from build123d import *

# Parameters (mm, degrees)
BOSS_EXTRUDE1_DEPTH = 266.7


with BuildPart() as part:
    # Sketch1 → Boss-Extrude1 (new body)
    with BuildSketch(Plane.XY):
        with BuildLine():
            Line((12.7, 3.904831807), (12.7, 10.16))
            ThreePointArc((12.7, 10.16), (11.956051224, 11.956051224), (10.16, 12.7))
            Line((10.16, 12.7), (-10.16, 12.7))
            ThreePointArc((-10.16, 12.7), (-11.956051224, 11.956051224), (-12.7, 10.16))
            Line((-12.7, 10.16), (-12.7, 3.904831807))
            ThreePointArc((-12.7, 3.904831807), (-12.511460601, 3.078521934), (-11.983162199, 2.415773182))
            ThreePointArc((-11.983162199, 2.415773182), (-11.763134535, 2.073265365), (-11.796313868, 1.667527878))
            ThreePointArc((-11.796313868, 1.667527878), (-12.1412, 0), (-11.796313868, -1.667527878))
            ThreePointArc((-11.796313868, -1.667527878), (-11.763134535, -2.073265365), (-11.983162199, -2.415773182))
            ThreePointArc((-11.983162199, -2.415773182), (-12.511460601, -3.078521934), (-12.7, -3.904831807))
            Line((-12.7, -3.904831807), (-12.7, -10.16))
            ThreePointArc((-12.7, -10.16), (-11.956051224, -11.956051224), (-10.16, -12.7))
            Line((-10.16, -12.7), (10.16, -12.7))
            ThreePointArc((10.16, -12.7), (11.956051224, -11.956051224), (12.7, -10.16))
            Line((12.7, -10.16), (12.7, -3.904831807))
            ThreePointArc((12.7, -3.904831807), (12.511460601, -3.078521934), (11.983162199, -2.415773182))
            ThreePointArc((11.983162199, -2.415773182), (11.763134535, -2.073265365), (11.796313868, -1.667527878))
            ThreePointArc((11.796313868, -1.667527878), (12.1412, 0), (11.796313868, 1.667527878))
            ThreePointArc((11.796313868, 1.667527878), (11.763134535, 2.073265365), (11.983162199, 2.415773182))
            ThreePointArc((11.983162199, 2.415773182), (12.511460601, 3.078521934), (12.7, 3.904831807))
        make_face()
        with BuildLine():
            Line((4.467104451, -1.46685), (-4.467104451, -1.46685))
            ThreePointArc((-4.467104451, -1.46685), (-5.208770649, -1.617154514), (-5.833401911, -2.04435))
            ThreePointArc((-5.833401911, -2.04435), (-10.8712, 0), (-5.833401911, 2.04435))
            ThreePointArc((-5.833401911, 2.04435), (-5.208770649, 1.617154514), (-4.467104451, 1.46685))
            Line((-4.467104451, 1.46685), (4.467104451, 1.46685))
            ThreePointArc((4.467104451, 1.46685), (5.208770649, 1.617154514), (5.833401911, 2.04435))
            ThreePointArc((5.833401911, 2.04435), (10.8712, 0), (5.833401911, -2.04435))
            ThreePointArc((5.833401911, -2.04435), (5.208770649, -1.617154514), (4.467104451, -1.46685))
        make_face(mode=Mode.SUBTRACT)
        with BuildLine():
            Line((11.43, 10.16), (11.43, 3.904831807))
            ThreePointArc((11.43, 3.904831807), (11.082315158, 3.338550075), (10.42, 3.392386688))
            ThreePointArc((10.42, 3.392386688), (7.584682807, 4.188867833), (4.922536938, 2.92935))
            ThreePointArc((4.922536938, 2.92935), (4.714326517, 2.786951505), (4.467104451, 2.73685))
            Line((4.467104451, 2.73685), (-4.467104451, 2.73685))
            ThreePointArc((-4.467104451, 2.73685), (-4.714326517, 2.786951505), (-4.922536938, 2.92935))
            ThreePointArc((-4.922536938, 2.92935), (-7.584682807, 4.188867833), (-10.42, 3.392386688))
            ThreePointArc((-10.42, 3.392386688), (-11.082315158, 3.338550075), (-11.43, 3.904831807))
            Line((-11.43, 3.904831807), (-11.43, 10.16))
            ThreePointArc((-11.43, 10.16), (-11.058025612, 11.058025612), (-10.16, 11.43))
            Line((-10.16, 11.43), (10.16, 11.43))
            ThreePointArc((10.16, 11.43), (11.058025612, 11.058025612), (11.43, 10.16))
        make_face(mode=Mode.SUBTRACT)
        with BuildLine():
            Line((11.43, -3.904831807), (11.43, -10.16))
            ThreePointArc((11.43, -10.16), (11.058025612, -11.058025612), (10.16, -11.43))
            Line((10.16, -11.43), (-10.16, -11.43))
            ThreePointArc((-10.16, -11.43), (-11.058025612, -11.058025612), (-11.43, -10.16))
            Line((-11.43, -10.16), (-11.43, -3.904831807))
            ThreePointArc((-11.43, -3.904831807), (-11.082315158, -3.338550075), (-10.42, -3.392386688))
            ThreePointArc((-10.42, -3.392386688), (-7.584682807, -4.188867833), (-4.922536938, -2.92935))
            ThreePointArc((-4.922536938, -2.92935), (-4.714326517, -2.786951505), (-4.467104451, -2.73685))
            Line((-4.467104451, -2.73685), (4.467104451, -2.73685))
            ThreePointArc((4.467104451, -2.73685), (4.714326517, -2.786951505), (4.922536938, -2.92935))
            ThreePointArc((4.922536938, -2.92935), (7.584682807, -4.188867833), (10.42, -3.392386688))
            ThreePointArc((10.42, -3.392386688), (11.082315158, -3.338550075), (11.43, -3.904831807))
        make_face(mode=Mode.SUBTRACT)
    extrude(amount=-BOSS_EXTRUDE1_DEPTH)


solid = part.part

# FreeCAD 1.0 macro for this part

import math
import FreeCAD as App
import Part
import Sketcher
Q = App.Units.Quantity

doc = App.newDocument("Part")
params = doc.addObject("Spreadsheet::Sheet", "Params")
for row, (alias, value) in enumerate([
    ("sketch1_radius", "0.1 in"),
    ("sketch1_radius2", "0.05 in"),
    ("sketch1_width", "0.8 in"),
    ("sketch1_radius3", "0.075 in"),
    ("pad1_length", "10.5 in"),
], start=1):
    params.set(f"A{row}", alias)
    params.set(f"B{row}", "=" + value)
    params.setAlias(f"B{row}", alias)

body = doc.addObject("PartDesign::Body", "Body")

sketch1 = doc.addObject("Sketcher::SketchObject", "Sketch")
body.addObject(sketch1)
sketch1.AttachmentSupport = (doc.XY_Plane, [""])
sketch1.MapMode = "FlatFace"
sketch1.addGeometry(Part.LineSegment(App.Vector(12.7, 3.9, 0), App.Vector(12.7, 10.16, 0)), False)
sketch1.addGeometry(Part.ArcOfCircle(Part.Circle(App.Vector(10.16, 10.16, 0), App.Vector(0, 0, 1), 2.54), math.radians(0), math.radians(90)), False)
sketch1.addGeometry(Part.LineSegment(App.Vector(10.16, 12.7, 0), App.Vector(-10.16, 12.7, 0)), False)
sketch1.addGeometry(Part.ArcOfCircle(Part.Circle(App.Vector(-10.16, 10.16, 0), App.Vector(0, 0, 1), 2.54), math.radians(90), math.radians(180)), False)
sketch1.addGeometry(Part.LineSegment(App.Vector(-12.7, 10.16, 0), App.Vector(-12.7, 3.9, 0)), False)
sketch1.addGeometry(Part.ArcOfCircle(Part.Circle(App.Vector(-10.8, 3.9, 0), App.Vector(0, 0, 1), 1.9), math.radians(180), math.radians(231)), False)
sketch1.addGeometry(Part.ArcOfCircle(Part.Circle(App.Vector(-12.38, 1.92, 0), App.Vector(0, 0, 1), 0.64), math.radians(-23), math.radians(51)), False)
sketch1.addGeometry(Part.ArcOfCircle(Part.Circle(App.Vector(-7.94, 0, 0), App.Vector(0, 0, 1), 4.2), math.radians(157), math.radians(203)), False)
sketch1.addGeometry(Part.ArcOfCircle(Part.Circle(App.Vector(-12.38, -1.92, 0), App.Vector(0, 0, 1), 0.64), math.radians(-51), math.radians(23)), False)
sketch1.addGeometry(Part.ArcOfCircle(Part.Circle(App.Vector(-10.8, -3.9, 0), App.Vector(0, 0, 1), 1.9), math.radians(129), math.radians(180)), False)
sketch1.addGeometry(Part.LineSegment(App.Vector(-12.7, -3.9, 0), App.Vector(-12.7, -10.16, 0)), False)
sketch1.addGeometry(Part.ArcOfCircle(Part.Circle(App.Vector(-10.16, -10.16, 0), App.Vector(0, 0, 1), 2.54), math.radians(-180), math.radians(-90)), False)
sketch1.addGeometry(Part.LineSegment(App.Vector(-10.16, -12.7, 0), App.Vector(10.16, -12.7, 0)), False)
sketch1.addGeometry(Part.ArcOfCircle(Part.Circle(App.Vector(10.16, -10.16, 0), App.Vector(0, 0, 1), 2.54), math.radians(-90), math.radians(0)), False)
sketch1.addGeometry(Part.LineSegment(App.Vector(12.7, -10.16, 0), App.Vector(12.7, -3.9, 0)), False)
sketch1.addGeometry(Part.ArcOfCircle(Part.Circle(App.Vector(10.8, -3.9, 0), App.Vector(0, 0, 1), 1.9), math.radians(0), math.radians(51)), False)
sketch1.addGeometry(Part.ArcOfCircle(Part.Circle(App.Vector(12.38, -1.92, 0), App.Vector(0, 0, 1), 0.64), math.radians(157), math.radians(231)), False)
sketch1.addGeometry(Part.ArcOfCircle(Part.Circle(App.Vector(7.94, 0, 0), App.Vector(0, 0, 1), 4.2), math.radians(-23), math.radians(23)), False)
sketch1.addGeometry(Part.ArcOfCircle(Part.Circle(App.Vector(12.38, 1.92, 0), App.Vector(0, 0, 1), 0.64), math.radians(129), math.radians(203)), False)
sketch1.addGeometry(Part.ArcOfCircle(Part.Circle(App.Vector(10.8, 3.9, 0), App.Vector(0, 0, 1), 1.9), math.radians(-51), math.radians(0)), False)
sketch1.addGeometry(Part.ArcOfCircle(Part.Circle(App.Vector(10.79, -3.9, 0), App.Vector(0, 0, 1), 0.64), math.radians(0), math.radians(126)), False)
sketch1.addGeometry(Part.LineSegment(App.Vector(11.43, -3.9, 0), App.Vector(11.43, -10.16, 0)), False)
sketch1.addGeometry(Part.ArcOfCircle(Part.Circle(App.Vector(10.16, -10.16, 0), App.Vector(0, 0, 1), 1.27), math.radians(-90), math.radians(0)), False)
sketch1.addGeometry(Part.LineSegment(App.Vector(10.16, -11.43, 0), App.Vector(-10.16, -11.43, 0)), False)
sketch1.addGeometry(Part.ArcOfCircle(Part.Circle(App.Vector(-10.16, -10.16, 0), App.Vector(0, 0, 1), 1.27), math.radians(180), math.radians(270)), False)
sketch1.addGeometry(Part.LineSegment(App.Vector(-11.43, -10.16, 0), App.Vector(-11.43, -3.9, 0)), False)
sketch1.addGeometry(Part.ArcOfCircle(Part.Circle(App.Vector(-10.79, -3.9, 0), App.Vector(0, 0, 1), 0.64), math.radians(54), math.radians(180)), False)
sketch1.addGeometry(Part.ArcOfCircle(Part.Circle(App.Vector(-7.94, 0, 0), App.Vector(0, 0, 1), 4.2), math.radians(-126), math.radians(-44)), False)
sketch1.addGeometry(Part.ArcOfCircle(Part.Circle(App.Vector(-4.47, -3.37, 0), App.Vector(0, 0, 1), 0.64), math.radians(90), math.radians(136)), False)
sketch1.addGeometry(Part.LineSegment(App.Vector(-4.47, -2.74, 0), App.Vector(4.47, -2.74, 0)), False)
sketch1.addGeometry(Part.ArcOfCircle(Part.Circle(App.Vector(4.47, -3.37, 0), App.Vector(0, 0, 1), 0.64), math.radians(44), math.radians(90)), False)
sketch1.addGeometry(Part.ArcOfCircle(Part.Circle(App.Vector(7.94, 0, 0), App.Vector(0, 0, 1), 4.2), math.radians(-136), math.radians(-54)), False)
sketch1.addGeometry(Part.ArcOfCircle(Part.Circle(App.Vector(4.47, -3.37, 0), App.Vector(0, 0, 1), 1.91), math.radians(44), math.radians(90)), False)
sketch1.addGeometry(Part.LineSegment(App.Vector(4.47, -1.47, 0), App.Vector(-4.47, -1.47, 0)), False)
sketch1.addGeometry(Part.ArcOfCircle(Part.Circle(App.Vector(-4.47, -3.37, 0), App.Vector(0, 0, 1), 1.91), math.radians(90), math.radians(136)), False)
sketch1.addGeometry(Part.ArcOfCircle(Part.Circle(App.Vector(-7.94, 0, 0), App.Vector(0, 0, 1), 2.93), math.radians(44), math.radians(316)), False)
sketch1.addGeometry(Part.ArcOfCircle(Part.Circle(App.Vector(-4.47, 3.37, 0), App.Vector(0, 0, 1), 1.91), math.radians(-136), math.radians(-90)), False)
sketch1.addGeometry(Part.LineSegment(App.Vector(-4.47, 1.47, 0), App.Vector(4.47, 1.47, 0)), False)
sketch1.addGeometry(Part.ArcOfCircle(Part.Circle(App.Vector(4.47, 3.37, 0), App.Vector(0, 0, 1), 1.91), math.radians(-90), math.radians(-44)), False)
sketch1.addGeometry(Part.ArcOfCircle(Part.Circle(App.Vector(7.94, 0, 0), App.Vector(0, 0, 1), 2.93), math.radians(-136), math.radians(136)), False)
sketch1.addGeometry(Part.ArcOfCircle(Part.Circle(App.Vector(10.16, 10.16, 0), App.Vector(0, 0, 1), 1.27), math.radians(0), math.radians(90)), False)
sketch1.addGeometry(Part.LineSegment(App.Vector(11.43, 10.16, 0), App.Vector(11.43, 3.9, 0)), False)
sketch1.addGeometry(Part.ArcOfCircle(Part.Circle(App.Vector(10.79, 3.9, 0), App.Vector(0, 0, 1), 0.64), math.radians(-126), math.radians(0)), False)
sketch1.addGeometry(Part.ArcOfCircle(Part.Circle(App.Vector(7.94, 0, 0), App.Vector(0, 0, 1), 4.2), math.radians(54), math.radians(136)), False)
sketch1.addGeometry(Part.ArcOfCircle(Part.Circle(App.Vector(4.47, 3.37, 0), App.Vector(0, 0, 1), 0.64), math.radians(-90), math.radians(-44)), False)
sketch1.addGeometry(Part.LineSegment(App.Vector(4.47, 2.74, 0), App.Vector(-4.47, 2.74, 0)), False)
sketch1.addGeometry(Part.ArcOfCircle(Part.Circle(App.Vector(-4.47, 3.37, 0), App.Vector(0, 0, 1), 0.64), math.radians(-136), math.radians(-90)), False)
sketch1.addGeometry(Part.ArcOfCircle(Part.Circle(App.Vector(-7.94, 0, 0), App.Vector(0, 0, 1), 4.2), math.radians(44), math.radians(126)), False)
sketch1.addGeometry(Part.ArcOfCircle(Part.Circle(App.Vector(-10.79, 3.9, 0), App.Vector(0, 0, 1), 0.64), math.radians(180), math.radians(306)), False)
sketch1.addGeometry(Part.LineSegment(App.Vector(-11.43, 3.9, 0), App.Vector(-11.43, 10.16, 0)), False)
sketch1.addGeometry(Part.ArcOfCircle(Part.Circle(App.Vector(-10.16, 10.16, 0), App.Vector(0, 0, 1), 1.27), math.radians(90), math.radians(180)), False)
sketch1.addGeometry(Part.LineSegment(App.Vector(-10.16, 11.43, 0), App.Vector(10.16, 11.43, 0)), False)
sketch1.addConstraint(Sketcher.Constraint("Tangent", 0, 2, 1, 1))
sketch1.addConstraint(Sketcher.Constraint("Tangent", 1, 2, 2, 1))
sketch1.addConstraint(Sketcher.Constraint("Tangent", 2, 2, 3, 1))
sketch1.addConstraint(Sketcher.Constraint("Tangent", 3, 2, 4, 1))
sketch1.addConstraint(Sketcher.Constraint("Tangent", 4, 2, 5, 1))
sketch1.addConstraint(Sketcher.Constraint("Tangent", 5, 2, 6, 2))
sketch1.addConstraint(Sketcher.Constraint("Tangent", 6, 1, 7, 1))
sketch1.addConstraint(Sketcher.Constraint("Tangent", 7, 2, 8, 2))
sketch1.addConstraint(Sketcher.Constraint("Tangent", 8, 1, 9, 1))
sketch1.addConstraint(Sketcher.Constraint("Tangent", 9, 2, 10, 1))
sketch1.addConstraint(Sketcher.Constraint("Tangent", 10, 2, 11, 1))
sketch1.addConstraint(Sketcher.Constraint("Tangent", 11, 2, 12, 1))
sketch1.addConstraint(Sketcher.Constraint("Tangent", 12, 2, 13, 1))
sketch1.addConstraint(Sketcher.Constraint("Tangent", 13, 2, 14, 1))
sketch1.addConstraint(Sketcher.Constraint("Tangent", 14, 2, 15, 1))
sketch1.addConstraint(Sketcher.Constraint("Tangent", 15, 2, 16, 2))
sketch1.addConstraint(Sketcher.Constraint("Tangent", 16, 1, 17, 1))
sketch1.addConstraint(Sketcher.Constraint("Tangent", 17, 2, 18, 2))
sketch1.addConstraint(Sketcher.Constraint("Tangent", 18, 1, 19, 1))
sketch1.addConstraint(Sketcher.Constraint("Tangent", 19, 2, 0, 1))
sketch1.addConstraint(Sketcher.Constraint("Tangent", 20, 1, 21, 1))
sketch1.addConstraint(Sketcher.Constraint("Tangent", 21, 2, 22, 2))
sketch1.addConstraint(Sketcher.Constraint("Tangent", 22, 1, 23, 1))
sketch1.addConstraint(Sketcher.Constraint("Tangent", 23, 2, 24, 2))
sketch1.addConstraint(Sketcher.Constraint("Tangent", 24, 1, 25, 1))
sketch1.addConstraint(Sketcher.Constraint("Tangent", 25, 2, 26, 2))
sketch1.addConstraint(Sketcher.Constraint("Tangent", 26, 1, 27, 1))
sketch1.addConstraint(Sketcher.Constraint("Tangent", 27, 2, 28, 2))
sketch1.addConstraint(Sketcher.Constraint("Tangent", 28, 1, 29, 1))
sketch1.addConstraint(Sketcher.Constraint("Tangent", 29, 2, 30, 2))
sketch1.addConstraint(Sketcher.Constraint("Tangent", 30, 1, 31, 1))
sketch1.addConstraint(Sketcher.Constraint("Tangent", 31, 2, 20, 2))
sketch1.addConstraint(Sketcher.Constraint("Tangent", 32, 2, 33, 1))
sketch1.addConstraint(Sketcher.Constraint("Tangent", 33, 2, 34, 1))
sketch1.addConstraint(Sketcher.Constraint("Tangent", 34, 2, 35, 2))
sketch1.addConstraint(Sketcher.Constraint("Tangent", 35, 1, 36, 1))
sketch1.addConstraint(Sketcher.Constraint("Tangent", 36, 2, 37, 1))
sketch1.addConstraint(Sketcher.Constraint("Tangent", 37, 2, 38, 1))
sketch1.addConstraint(Sketcher.Constraint("Tangent", 38, 2, 39, 2))
sketch1.addConstraint(Sketcher.Constraint("Tangent", 39, 1, 32, 1))
sketch1.addConstraint(Sketcher.Constraint("Tangent", 40, 1, 41, 1))
sketch1.addConstraint(Sketcher.Constraint("Tangent", 41, 2, 42, 2))
sketch1.addConstraint(Sketcher.Constraint("Tangent", 42, 1, 43, 1))
sketch1.addConstraint(Sketcher.Constraint("Tangent", 43, 2, 44, 2))
sketch1.addConstraint(Sketcher.Constraint("Tangent", 44, 1, 45, 1))
sketch1.addConstraint(Sketcher.Constraint("Tangent", 45, 2, 46, 2))
sketch1.addConstraint(Sketcher.Constraint("Tangent", 46, 1, 47, 1))
sketch1.addConstraint(Sketcher.Constraint("Tangent", 47, 2, 48, 2))
sketch1.addConstraint(Sketcher.Constraint("Tangent", 48, 1, 49, 1))
sketch1.addConstraint(Sketcher.Constraint("Tangent", 49, 2, 50, 2))
sketch1.addConstraint(Sketcher.Constraint("Tangent", 50, 1, 51, 1))
sketch1.addConstraint(Sketcher.Constraint("Tangent", 51, 2, 40, 2))
sketch1.addConstraint(Sketcher.Constraint("Vertical", 0))
sketch1.addConstraint(Sketcher.Constraint("Horizontal", 2))
sketch1.addConstraint(Sketcher.Constraint("Vertical", 4))
sketch1.addConstraint(Sketcher.Constraint("Vertical", 10))
sketch1.addConstraint(Sketcher.Constraint("Horizontal", 12))
sketch1.addConstraint(Sketcher.Constraint("Vertical", 14))
sketch1.addConstraint(Sketcher.Constraint("Vertical", 21))
sketch1.addConstraint(Sketcher.Constraint("Horizontal", 23))
sketch1.addConstraint(Sketcher.Constraint("Vertical", 25))
sketch1.addConstraint(Sketcher.Constraint("Horizontal", 29))
sketch1.addConstraint(Sketcher.Constraint("Horizontal", 33))
sketch1.addConstraint(Sketcher.Constraint("Horizontal", 37))
sketch1.addConstraint(Sketcher.Constraint("Vertical", 41))
sketch1.addConstraint(Sketcher.Constraint("Horizontal", 45))
sketch1.addConstraint(Sketcher.Constraint("Vertical", 49))
sketch1.addConstraint(Sketcher.Constraint("Horizontal", 51))
sketch1.addConstraint(Sketcher.Constraint("Coincident", 20, 3, 15, 3))
sketch1.addConstraint(Sketcher.Constraint("Coincident", 22, 3, 13, 3))
sketch1.addConstraint(Sketcher.Constraint("Coincident", 24, 3, 11, 3))
sketch1.addConstraint(Sketcher.Constraint("Coincident", 26, 3, 9, 3))
sketch1.addConstraint(Sketcher.Constraint("Coincident", 27, 3, 7, 3))
sketch1.addConstraint(Sketcher.Constraint("Coincident", 31, 3, 17, 3))
sketch1.addConstraint(Sketcher.Constraint("Coincident", 32, 3, 30, 3))
sketch1.addConstraint(Sketcher.Constraint("Coincident", 34, 3, 28, 3))
sketch1.addConstraint(Sketcher.Constraint("Coincident", 35, 3, 7, 3))
sketch1.addConstraint(Sketcher.Constraint("Coincident", 39, 3, 17, 3))
sketch1.addConstraint(Sketcher.Constraint("Coincident", 40, 3, 1, 3))
sketch1.addConstraint(Sketcher.Constraint("Coincident", 42, 3, 19, 3))
sketch1.addConstraint(Sketcher.Constraint("Coincident", 43, 3, 17, 3))
sketch1.addConstraint(Sketcher.Constraint("Coincident", 44, 3, 38, 3))
sketch1.addConstraint(Sketcher.Constraint("Coincident", 46, 3, 36, 3))
sketch1.addConstraint(Sketcher.Constraint("Coincident", 47, 3, 7, 3))
sketch1.addConstraint(Sketcher.Constraint("Coincident", 48, 3, 5, 3))
sketch1.addConstraint(Sketcher.Constraint("Coincident", 50, 3, 3, 3))
sketch1.addConstraint(Sketcher.Constraint("Equal", 1, 3))
sketch1.addConstraint(Sketcher.Constraint("Equal", 6, 8))
sketch1.addConstraint(Sketcher.Constraint("Equal", 5, 9))
sketch1.addConstraint(Sketcher.Constraint("Equal", 3, 11))
sketch1.addConstraint(Sketcher.Constraint("Equal", 11, 13))
sketch1.addConstraint(Sketcher.Constraint("Equal", 9, 15))
sketch1.addConstraint(Sketcher.Constraint("Equal", 8, 16))
sketch1.addConstraint(Sketcher.Constraint("Equal", 7, 17))
sketch1.addConstraint(Sketcher.Constraint("Equal", 16, 18))
sketch1.addConstraint(Sketcher.Constraint("Equal", 15, 19))
sketch1.addConstraint(Sketcher.Constraint("Equal", 18, 20))
sketch1.addConstraint(Sketcher.Constraint("Equal", 17, 27))
sketch1.addConstraint(Sketcher.Constraint("Equal", 26, 28))
sketch1.addConstraint(Sketcher.Constraint("Equal", 28, 30))
sketch1.addConstraint(Sketcher.Constraint("Equal", 27, 31))
sketch1.addConstraint(Sketcher.Constraint("Equal", 19, 32))
sketch1.addConstraint(Sketcher.Constraint("Equal", 34, 36))
sketch1.addConstraint(Sketcher.Constraint("Equal", 36, 38))
sketch1.addConstraint(Sketcher.Constraint("Equal", 24, 40))
sketch1.addConstraint(Sketcher.Constraint("Equal", 31, 43))
sketch1.addConstraint(Sketcher.Constraint("Symmetric", 1, 3, 11, 3, -1, 1))
sketch1.addConstraint(Sketcher.Constraint("Symmetric", 5, 3, 15, 3, -1, 1))
sketch1.addConstraint(Sketcher.Constraint("Symmetric", 30, 3, 36, 3, -1, 1))
sketch1.addConstraint(Sketcher.Constraint("Symmetric", 9, 3, 15, 3, -2))
sketch1.addConstraint(Sketcher.Constraint("Radius", 1, Q("0.1 in")))
sketch1.addConstraint(Sketcher.Constraint("Radius", 22, Q("0.05 in")))
sketch1.addConstraint(Sketcher.Constraint("DistanceX", 2, 2, 2, 1, Q("0.8 in")))
sketch1.addConstraint(Sketcher.Constraint("Radius", 5, Q("0.075 in")))
sketch1.addConstraint(Sketcher.Constraint("DistanceY", -1, 1, 1, 3, Q("0.4 in")))
sketch1.addConstraint(Sketcher.Constraint("Radius", 7, Q("0.1655 in")))
sketch1.addConstraint(Sketcher.Constraint("DistanceX", 7, 3, -1, 1, Q("0.3125 in")))
sketch1.addConstraint(Sketcher.Constraint("DistanceX", 29, 1, 29, 2, 8.934209))
sketch1.setExpression("Constraints[110]", "Params.sketch1_radius")
sketch1.setExpression("Constraints[111]", "Params.sketch1_radius2")
sketch1.setExpression("Constraints[112]", "Params.sketch1_width")
sketch1.setExpression("Constraints[113]", "Params.sketch1_radius3")
pad1 = doc.addObject("PartDesign::Pad", "Pad")
body.addObject(pad1)
pad1.Profile = sketch1
pad1.setExpression("Length", "Params.pad1_length")
pad1.Reversed = True

doc.recompute()
